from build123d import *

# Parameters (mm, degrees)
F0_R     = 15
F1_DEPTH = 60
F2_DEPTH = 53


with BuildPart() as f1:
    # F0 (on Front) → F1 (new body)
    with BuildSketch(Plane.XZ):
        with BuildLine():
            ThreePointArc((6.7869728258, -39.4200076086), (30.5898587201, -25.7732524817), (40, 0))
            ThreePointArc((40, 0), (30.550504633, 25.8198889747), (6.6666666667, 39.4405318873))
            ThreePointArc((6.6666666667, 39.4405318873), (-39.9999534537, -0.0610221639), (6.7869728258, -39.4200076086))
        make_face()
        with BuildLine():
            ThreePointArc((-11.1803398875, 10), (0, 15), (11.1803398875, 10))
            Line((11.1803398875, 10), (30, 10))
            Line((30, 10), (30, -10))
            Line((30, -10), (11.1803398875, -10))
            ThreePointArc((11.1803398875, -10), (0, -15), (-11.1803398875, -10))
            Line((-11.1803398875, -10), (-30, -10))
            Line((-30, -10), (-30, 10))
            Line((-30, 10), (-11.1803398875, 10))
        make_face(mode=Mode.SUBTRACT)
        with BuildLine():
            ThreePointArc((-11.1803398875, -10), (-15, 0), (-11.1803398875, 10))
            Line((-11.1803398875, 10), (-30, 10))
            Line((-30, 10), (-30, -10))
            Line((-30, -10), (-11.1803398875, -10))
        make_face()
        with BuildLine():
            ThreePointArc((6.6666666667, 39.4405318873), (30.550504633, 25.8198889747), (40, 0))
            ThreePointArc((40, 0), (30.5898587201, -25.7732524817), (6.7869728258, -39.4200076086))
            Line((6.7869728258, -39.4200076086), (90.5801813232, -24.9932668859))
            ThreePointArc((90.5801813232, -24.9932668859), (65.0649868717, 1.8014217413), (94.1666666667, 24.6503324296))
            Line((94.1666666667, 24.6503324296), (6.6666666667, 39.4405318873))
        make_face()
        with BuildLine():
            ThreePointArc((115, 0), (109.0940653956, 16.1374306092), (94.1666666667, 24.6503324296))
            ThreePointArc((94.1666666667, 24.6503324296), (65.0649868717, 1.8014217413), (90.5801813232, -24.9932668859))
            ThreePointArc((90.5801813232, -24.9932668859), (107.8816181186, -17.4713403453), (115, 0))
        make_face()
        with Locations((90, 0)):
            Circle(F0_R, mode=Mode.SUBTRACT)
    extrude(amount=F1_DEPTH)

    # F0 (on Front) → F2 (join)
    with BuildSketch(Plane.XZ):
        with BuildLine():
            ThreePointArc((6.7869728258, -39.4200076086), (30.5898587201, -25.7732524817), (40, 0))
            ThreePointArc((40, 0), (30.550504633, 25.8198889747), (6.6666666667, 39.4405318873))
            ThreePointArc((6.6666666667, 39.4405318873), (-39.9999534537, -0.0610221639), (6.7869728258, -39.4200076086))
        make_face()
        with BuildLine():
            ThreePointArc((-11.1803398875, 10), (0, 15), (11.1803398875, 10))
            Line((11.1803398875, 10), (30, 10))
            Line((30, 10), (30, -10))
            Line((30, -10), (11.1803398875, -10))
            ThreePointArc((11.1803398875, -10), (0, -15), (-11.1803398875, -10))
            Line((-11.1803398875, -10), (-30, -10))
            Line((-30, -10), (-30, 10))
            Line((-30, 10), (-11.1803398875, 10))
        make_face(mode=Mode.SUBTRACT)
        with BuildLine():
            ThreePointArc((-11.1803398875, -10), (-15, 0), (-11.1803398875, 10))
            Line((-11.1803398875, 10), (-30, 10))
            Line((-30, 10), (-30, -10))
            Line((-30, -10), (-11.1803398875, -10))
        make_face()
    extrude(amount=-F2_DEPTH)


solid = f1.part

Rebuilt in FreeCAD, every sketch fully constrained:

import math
import FreeCAD as App
import Part
import Sketcher
from FreeCAD import Vector
Q = App.Units.Quantity

doc = App.newDocument("Part")
body = doc.addObject("PartDesign::Body", "Body")

sketch1 = body.newObject("Sketcher::SketchObject", "Sketch")
sketch1.AttachmentSupport = (doc.getObject("XZ_Plane"), [""])
sketch1.MapMode = "FlatFace"
sketch1.addGeometry(Part.ArcOfCircle(Part.Circle(Vector(0, 0, 0), Vector(0, 0, 1), 40), math.radians(80), math.radians(280)), False)
sketch1.addGeometry(Part.LineSegment(Vector(7, -39, 0), Vector(91, -25, 0)), False)
sketch1.addGeometry(Part.ArcOfCircle(Part.Circle(Vector(90, 0, 0), Vector(0, 0, 1), 25), math.radians(-89), math.radians(0)), False)
sketch1.addGeometry(Part.ArcOfCircle(Part.Circle(Vector(90, 0, 0), Vector(0, 0, 1), 25), math.radians(0), math.radians(80)), False)
sketch1.addGeometry(Part.LineSegment(Vector(94, 25, 0), Vector(7, 39, 0)), False)
sketch1.addGeometry(Part.Circle(Vector(90, 0, 0), Vector(0, 0, 1), 15), False)
sketch1.addGeometry(Part.ArcOfCircle(Part.Circle(Vector(0, 0, 0), Vector(0, 0, 1), 15), math.radians(42), math.radians(318)), False)
sketch1.addGeometry(Part.LineSegment(Vector(11, 10, 0), Vector(30, 10, 0)), False)
sketch1.addGeometry(Part.LineSegment(Vector(30, 10, 0), Vector(30, -10, 0)), False)
sketch1.addGeometry(Part.LineSegment(Vector(30, -10, 0), Vector(11, -10, 0)), False)
sketch1.addConstraint(Sketcher.Constraint("Tangent", 0, 2, 1, 1))
sketch1.addConstraint(Sketcher.Constraint("Coincident", 1, 2, 2, 1))
sketch1.addConstraint(Sketcher.Constraint("Tangent", 2, 2, 3, 1))
sketch1.addConstraint(Sketcher.Constraint("Tangent", 3, 2, 4, 1))
sketch1.addConstraint(Sketcher.Constraint("Tangent", 4, 2, 0, 1))
sketch1.addConstraint(Sketcher.Constraint("Coincident", 6, 1, 7, 1))
sketch1.addConstraint(Sketcher.Constraint("Coincident", 7, 2, 8, 1))
sketch1.addConstraint(Sketcher.Constraint("Coincident", 8, 2, 9, 1))
sketch1.addConstraint(Sketcher.Constraint("Coincident", 9, 2, 6, 2))
sketch1.addConstraint(Sketcher.Constraint("Horizontal", 7))
sketch1.addConstraint(Sketcher.Constraint("Vertical", 8))
sketch1.addConstraint(Sketcher.Constraint("Horizontal", 9))
sketch1.addConstraint(Sketcher.Constraint("Coincident", 0, 3, -1, 1))
sketch1.addConstraint(Sketcher.Constraint("Coincident", 6, 3, -1, 1))
sketch1.addConstraint(Sketcher.Constraint("Coincident", 5, 3, 2, 3))
sketch1.addConstraint(Sketcher.Constraint("Equal", 2, 3))
sketch1.addConstraint(Sketcher.Constraint("Equal", 5, 6))
sketch1.addConstraint(Sketcher.Constraint("PointOnObject", 2, 3, -1))
sketch1.addConstraint(Sketcher.Constraint("PointOnObject", 2, 2, -1))
sketch1.addConstraint(Sketcher.Constraint("Vertical", 6, 1, 9, 2))
sketch1.addConstraint(Sketcher.Constraint("Diameter", 5, Q("30 mm")))
sketch1.addConstraint(Sketcher.Constraint("Radius", 0, Q("40 mm")))
sketch1.addConstraint(Sketcher.Constraint("Radius", 2, Q("25 mm")))
sketch1.addConstraint(Sketcher.Constraint("DistanceY", 8, 2, 8, 1, Q("20 mm")))
sketch1.addConstraint(Sketcher.Constraint("DistanceX", -1, 1, 2, 3, Q("90 mm")))
sketch1.addConstraint(Sketcher.Constraint("DistanceX", -1, 1, 7, 2, Q("30 mm")))
sketch1.addConstraint(Sketcher.Constraint("DistanceY", 1, 2, 3, 2, Q("49.643599 mm")))
pad1 = body.newObject("PartDesign::Pad", "Pad")
pad1.Profile = sketch1
pad1.Length = 60

sketch2 = body.newObject("Sketcher::SketchObject", "Sketch001")
sketch2.AttachmentSupport = (doc.getObject("XZ_Plane"), [""])
sketch2.MapMode = "FlatFace"
sketch2.addGeometry(Part.ArcOfCircle(Part.Circle(Vector(0, 0, 0), Vector(0, 0, 1), 40), math.radians(-80), math.radians(0)), False)
sketch2.addGeometry(Part.ArcOfCircle(Part.Circle(Vector(0, 0, 0), Vector(0, 0, 1), 40), math.radians(0), math.radians(280)), False)
sketch2.addGeometry(Part.ArcOfCircle(Part.Circle(Vector(0, 0, 0), Vector(0, 0, 1), 15), math.radians(42), math.radians(318)), False)
sketch2.addGeometry(Part.LineSegment(Vector(11, 10, 0), Vector(30, 10, 0)), False)
sketch2.addGeometry(Part.LineSegment(Vector(30, 10, 0), Vector(30, -10, 0)), False)
sketch2.addGeometry(Part.LineSegment(Vector(30, -10, 0), Vector(11, -10, 0)), False)
sketch2.addConstraint(Sketcher.Constraint("Tangent", 0, 1, 1, 2))
sketch2.addConstraint(Sketcher.Constraint("Coincident", 1, 1, 0, 2))
sketch2.addConstraint(Sketcher.Constraint("Coincident", 2, 1, 3, 1))
sketch2.addConstraint(Sketcher.Constraint("Coincident", 3, 2, 4, 1))
sketch2.addConstraint(Sketcher.Constraint("Coincident", 4, 2, 5, 1))
sketch2.addConstraint(Sketcher.Constraint("Coincident", 5, 2, 2, 2))
sketch2.addConstraint(Sketcher.Constraint("Horizontal", 3))
sketch2.addConstraint(Sketcher.Constraint("Vertical", 4))
sketch2.addConstraint(Sketcher.Constraint("Horizontal", 5))
sketch2.addConstraint(Sketcher.Constraint("Coincident", 0, 3, -1, 1))
sketch2.addConstraint(Sketcher.Constraint("Coincident", 2, 3, -1, 1))
sketch2.addConstraint(Sketcher.Constraint("PointOnObject", 1, 1, -1))
sketch2.addConstraint(Sketcher.Constraint("Vertical", 2, 1, 5, 2))
sketch2.addConstraint(Sketcher.Constraint("Radius", 0, Q("40 mm")))
sketch2.addConstraint(Sketcher.Constraint("Radius", 2, Q("15 mm")))
sketch2.addConstraint(Sketcher.Constraint("DistanceY", 4, 2, 4, 1, Q("20 mm")))
sketch2.addConstraint(Sketcher.Constraint("DistanceX", -1, 1, 3, 2, Q("30 mm")))
sketch2.addConstraint(Sketcher.Constraint("DistanceX", -1, 1, 0, 1, Q("6.786973 mm")))
pad2 = body.newObject("PartDesign::Pad", "Pad001")
pad2.Profile = sketch2
pad2.Length = 53
pad2.Reversed = True

doc.recompute()
